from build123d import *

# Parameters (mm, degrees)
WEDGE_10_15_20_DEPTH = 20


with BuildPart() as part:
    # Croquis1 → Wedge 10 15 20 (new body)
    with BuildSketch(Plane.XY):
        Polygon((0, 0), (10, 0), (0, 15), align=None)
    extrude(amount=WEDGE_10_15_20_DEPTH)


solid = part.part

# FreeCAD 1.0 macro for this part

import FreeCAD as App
import Part
import Sketcher
Q = App.Units.Quantity


def add_polygon(sketch, points):
    """Adds a closed chain of lines whose ends are joined by coincident constraints."""
    first, n = sketch.GeometryCount, len(points)
    for a, b in zip(points, points[1:] + points[:1]):
        sketch.addGeometry(Part.LineSegment(App.Vector(*a, 0), App.Vector(*b, 0)), False)
    for i in range(n):
        sketch.addConstraint(Sketcher.Constraint("Coincident", first + i, 2, first + (i + 1) % n, 1))

doc = App.newDocument("Part")
body = doc.addObject("PartDesign::Body", "Body")

sketch1 = body.newObject("Sketcher::SketchObject", "Sketch")
sketch1.AttachmentSupport = (doc.getObject("XY_Plane"), [""])
sketch1.MapMode = "FlatFace"
add_polygon(sketch1, [(0, 0), (10, 0), (0, 15)])
sketch1.addConstraint(Sketcher.Constraint("Horizontal", 0))
sketch1.addConstraint(Sketcher.Constraint("Vertical", 2))
sketch1.addConstraint(Sketcher.Constraint("Coincident", 2, 2, -1, 1))
sketch1.addConstraint(Sketcher.Constraint("DistanceX", 0, 1, 0, 2, Q("10 mm")))
sketch1.addConstraint(Sketcher.Constraint("DistanceY", 2, 2, 2, 1, Q("15 mm")))
pad1 = body.newObject("PartDesign::Pad", "Pad")
pad1.Profile = sketch1
pad1.Length = 20

doc.recompute()
